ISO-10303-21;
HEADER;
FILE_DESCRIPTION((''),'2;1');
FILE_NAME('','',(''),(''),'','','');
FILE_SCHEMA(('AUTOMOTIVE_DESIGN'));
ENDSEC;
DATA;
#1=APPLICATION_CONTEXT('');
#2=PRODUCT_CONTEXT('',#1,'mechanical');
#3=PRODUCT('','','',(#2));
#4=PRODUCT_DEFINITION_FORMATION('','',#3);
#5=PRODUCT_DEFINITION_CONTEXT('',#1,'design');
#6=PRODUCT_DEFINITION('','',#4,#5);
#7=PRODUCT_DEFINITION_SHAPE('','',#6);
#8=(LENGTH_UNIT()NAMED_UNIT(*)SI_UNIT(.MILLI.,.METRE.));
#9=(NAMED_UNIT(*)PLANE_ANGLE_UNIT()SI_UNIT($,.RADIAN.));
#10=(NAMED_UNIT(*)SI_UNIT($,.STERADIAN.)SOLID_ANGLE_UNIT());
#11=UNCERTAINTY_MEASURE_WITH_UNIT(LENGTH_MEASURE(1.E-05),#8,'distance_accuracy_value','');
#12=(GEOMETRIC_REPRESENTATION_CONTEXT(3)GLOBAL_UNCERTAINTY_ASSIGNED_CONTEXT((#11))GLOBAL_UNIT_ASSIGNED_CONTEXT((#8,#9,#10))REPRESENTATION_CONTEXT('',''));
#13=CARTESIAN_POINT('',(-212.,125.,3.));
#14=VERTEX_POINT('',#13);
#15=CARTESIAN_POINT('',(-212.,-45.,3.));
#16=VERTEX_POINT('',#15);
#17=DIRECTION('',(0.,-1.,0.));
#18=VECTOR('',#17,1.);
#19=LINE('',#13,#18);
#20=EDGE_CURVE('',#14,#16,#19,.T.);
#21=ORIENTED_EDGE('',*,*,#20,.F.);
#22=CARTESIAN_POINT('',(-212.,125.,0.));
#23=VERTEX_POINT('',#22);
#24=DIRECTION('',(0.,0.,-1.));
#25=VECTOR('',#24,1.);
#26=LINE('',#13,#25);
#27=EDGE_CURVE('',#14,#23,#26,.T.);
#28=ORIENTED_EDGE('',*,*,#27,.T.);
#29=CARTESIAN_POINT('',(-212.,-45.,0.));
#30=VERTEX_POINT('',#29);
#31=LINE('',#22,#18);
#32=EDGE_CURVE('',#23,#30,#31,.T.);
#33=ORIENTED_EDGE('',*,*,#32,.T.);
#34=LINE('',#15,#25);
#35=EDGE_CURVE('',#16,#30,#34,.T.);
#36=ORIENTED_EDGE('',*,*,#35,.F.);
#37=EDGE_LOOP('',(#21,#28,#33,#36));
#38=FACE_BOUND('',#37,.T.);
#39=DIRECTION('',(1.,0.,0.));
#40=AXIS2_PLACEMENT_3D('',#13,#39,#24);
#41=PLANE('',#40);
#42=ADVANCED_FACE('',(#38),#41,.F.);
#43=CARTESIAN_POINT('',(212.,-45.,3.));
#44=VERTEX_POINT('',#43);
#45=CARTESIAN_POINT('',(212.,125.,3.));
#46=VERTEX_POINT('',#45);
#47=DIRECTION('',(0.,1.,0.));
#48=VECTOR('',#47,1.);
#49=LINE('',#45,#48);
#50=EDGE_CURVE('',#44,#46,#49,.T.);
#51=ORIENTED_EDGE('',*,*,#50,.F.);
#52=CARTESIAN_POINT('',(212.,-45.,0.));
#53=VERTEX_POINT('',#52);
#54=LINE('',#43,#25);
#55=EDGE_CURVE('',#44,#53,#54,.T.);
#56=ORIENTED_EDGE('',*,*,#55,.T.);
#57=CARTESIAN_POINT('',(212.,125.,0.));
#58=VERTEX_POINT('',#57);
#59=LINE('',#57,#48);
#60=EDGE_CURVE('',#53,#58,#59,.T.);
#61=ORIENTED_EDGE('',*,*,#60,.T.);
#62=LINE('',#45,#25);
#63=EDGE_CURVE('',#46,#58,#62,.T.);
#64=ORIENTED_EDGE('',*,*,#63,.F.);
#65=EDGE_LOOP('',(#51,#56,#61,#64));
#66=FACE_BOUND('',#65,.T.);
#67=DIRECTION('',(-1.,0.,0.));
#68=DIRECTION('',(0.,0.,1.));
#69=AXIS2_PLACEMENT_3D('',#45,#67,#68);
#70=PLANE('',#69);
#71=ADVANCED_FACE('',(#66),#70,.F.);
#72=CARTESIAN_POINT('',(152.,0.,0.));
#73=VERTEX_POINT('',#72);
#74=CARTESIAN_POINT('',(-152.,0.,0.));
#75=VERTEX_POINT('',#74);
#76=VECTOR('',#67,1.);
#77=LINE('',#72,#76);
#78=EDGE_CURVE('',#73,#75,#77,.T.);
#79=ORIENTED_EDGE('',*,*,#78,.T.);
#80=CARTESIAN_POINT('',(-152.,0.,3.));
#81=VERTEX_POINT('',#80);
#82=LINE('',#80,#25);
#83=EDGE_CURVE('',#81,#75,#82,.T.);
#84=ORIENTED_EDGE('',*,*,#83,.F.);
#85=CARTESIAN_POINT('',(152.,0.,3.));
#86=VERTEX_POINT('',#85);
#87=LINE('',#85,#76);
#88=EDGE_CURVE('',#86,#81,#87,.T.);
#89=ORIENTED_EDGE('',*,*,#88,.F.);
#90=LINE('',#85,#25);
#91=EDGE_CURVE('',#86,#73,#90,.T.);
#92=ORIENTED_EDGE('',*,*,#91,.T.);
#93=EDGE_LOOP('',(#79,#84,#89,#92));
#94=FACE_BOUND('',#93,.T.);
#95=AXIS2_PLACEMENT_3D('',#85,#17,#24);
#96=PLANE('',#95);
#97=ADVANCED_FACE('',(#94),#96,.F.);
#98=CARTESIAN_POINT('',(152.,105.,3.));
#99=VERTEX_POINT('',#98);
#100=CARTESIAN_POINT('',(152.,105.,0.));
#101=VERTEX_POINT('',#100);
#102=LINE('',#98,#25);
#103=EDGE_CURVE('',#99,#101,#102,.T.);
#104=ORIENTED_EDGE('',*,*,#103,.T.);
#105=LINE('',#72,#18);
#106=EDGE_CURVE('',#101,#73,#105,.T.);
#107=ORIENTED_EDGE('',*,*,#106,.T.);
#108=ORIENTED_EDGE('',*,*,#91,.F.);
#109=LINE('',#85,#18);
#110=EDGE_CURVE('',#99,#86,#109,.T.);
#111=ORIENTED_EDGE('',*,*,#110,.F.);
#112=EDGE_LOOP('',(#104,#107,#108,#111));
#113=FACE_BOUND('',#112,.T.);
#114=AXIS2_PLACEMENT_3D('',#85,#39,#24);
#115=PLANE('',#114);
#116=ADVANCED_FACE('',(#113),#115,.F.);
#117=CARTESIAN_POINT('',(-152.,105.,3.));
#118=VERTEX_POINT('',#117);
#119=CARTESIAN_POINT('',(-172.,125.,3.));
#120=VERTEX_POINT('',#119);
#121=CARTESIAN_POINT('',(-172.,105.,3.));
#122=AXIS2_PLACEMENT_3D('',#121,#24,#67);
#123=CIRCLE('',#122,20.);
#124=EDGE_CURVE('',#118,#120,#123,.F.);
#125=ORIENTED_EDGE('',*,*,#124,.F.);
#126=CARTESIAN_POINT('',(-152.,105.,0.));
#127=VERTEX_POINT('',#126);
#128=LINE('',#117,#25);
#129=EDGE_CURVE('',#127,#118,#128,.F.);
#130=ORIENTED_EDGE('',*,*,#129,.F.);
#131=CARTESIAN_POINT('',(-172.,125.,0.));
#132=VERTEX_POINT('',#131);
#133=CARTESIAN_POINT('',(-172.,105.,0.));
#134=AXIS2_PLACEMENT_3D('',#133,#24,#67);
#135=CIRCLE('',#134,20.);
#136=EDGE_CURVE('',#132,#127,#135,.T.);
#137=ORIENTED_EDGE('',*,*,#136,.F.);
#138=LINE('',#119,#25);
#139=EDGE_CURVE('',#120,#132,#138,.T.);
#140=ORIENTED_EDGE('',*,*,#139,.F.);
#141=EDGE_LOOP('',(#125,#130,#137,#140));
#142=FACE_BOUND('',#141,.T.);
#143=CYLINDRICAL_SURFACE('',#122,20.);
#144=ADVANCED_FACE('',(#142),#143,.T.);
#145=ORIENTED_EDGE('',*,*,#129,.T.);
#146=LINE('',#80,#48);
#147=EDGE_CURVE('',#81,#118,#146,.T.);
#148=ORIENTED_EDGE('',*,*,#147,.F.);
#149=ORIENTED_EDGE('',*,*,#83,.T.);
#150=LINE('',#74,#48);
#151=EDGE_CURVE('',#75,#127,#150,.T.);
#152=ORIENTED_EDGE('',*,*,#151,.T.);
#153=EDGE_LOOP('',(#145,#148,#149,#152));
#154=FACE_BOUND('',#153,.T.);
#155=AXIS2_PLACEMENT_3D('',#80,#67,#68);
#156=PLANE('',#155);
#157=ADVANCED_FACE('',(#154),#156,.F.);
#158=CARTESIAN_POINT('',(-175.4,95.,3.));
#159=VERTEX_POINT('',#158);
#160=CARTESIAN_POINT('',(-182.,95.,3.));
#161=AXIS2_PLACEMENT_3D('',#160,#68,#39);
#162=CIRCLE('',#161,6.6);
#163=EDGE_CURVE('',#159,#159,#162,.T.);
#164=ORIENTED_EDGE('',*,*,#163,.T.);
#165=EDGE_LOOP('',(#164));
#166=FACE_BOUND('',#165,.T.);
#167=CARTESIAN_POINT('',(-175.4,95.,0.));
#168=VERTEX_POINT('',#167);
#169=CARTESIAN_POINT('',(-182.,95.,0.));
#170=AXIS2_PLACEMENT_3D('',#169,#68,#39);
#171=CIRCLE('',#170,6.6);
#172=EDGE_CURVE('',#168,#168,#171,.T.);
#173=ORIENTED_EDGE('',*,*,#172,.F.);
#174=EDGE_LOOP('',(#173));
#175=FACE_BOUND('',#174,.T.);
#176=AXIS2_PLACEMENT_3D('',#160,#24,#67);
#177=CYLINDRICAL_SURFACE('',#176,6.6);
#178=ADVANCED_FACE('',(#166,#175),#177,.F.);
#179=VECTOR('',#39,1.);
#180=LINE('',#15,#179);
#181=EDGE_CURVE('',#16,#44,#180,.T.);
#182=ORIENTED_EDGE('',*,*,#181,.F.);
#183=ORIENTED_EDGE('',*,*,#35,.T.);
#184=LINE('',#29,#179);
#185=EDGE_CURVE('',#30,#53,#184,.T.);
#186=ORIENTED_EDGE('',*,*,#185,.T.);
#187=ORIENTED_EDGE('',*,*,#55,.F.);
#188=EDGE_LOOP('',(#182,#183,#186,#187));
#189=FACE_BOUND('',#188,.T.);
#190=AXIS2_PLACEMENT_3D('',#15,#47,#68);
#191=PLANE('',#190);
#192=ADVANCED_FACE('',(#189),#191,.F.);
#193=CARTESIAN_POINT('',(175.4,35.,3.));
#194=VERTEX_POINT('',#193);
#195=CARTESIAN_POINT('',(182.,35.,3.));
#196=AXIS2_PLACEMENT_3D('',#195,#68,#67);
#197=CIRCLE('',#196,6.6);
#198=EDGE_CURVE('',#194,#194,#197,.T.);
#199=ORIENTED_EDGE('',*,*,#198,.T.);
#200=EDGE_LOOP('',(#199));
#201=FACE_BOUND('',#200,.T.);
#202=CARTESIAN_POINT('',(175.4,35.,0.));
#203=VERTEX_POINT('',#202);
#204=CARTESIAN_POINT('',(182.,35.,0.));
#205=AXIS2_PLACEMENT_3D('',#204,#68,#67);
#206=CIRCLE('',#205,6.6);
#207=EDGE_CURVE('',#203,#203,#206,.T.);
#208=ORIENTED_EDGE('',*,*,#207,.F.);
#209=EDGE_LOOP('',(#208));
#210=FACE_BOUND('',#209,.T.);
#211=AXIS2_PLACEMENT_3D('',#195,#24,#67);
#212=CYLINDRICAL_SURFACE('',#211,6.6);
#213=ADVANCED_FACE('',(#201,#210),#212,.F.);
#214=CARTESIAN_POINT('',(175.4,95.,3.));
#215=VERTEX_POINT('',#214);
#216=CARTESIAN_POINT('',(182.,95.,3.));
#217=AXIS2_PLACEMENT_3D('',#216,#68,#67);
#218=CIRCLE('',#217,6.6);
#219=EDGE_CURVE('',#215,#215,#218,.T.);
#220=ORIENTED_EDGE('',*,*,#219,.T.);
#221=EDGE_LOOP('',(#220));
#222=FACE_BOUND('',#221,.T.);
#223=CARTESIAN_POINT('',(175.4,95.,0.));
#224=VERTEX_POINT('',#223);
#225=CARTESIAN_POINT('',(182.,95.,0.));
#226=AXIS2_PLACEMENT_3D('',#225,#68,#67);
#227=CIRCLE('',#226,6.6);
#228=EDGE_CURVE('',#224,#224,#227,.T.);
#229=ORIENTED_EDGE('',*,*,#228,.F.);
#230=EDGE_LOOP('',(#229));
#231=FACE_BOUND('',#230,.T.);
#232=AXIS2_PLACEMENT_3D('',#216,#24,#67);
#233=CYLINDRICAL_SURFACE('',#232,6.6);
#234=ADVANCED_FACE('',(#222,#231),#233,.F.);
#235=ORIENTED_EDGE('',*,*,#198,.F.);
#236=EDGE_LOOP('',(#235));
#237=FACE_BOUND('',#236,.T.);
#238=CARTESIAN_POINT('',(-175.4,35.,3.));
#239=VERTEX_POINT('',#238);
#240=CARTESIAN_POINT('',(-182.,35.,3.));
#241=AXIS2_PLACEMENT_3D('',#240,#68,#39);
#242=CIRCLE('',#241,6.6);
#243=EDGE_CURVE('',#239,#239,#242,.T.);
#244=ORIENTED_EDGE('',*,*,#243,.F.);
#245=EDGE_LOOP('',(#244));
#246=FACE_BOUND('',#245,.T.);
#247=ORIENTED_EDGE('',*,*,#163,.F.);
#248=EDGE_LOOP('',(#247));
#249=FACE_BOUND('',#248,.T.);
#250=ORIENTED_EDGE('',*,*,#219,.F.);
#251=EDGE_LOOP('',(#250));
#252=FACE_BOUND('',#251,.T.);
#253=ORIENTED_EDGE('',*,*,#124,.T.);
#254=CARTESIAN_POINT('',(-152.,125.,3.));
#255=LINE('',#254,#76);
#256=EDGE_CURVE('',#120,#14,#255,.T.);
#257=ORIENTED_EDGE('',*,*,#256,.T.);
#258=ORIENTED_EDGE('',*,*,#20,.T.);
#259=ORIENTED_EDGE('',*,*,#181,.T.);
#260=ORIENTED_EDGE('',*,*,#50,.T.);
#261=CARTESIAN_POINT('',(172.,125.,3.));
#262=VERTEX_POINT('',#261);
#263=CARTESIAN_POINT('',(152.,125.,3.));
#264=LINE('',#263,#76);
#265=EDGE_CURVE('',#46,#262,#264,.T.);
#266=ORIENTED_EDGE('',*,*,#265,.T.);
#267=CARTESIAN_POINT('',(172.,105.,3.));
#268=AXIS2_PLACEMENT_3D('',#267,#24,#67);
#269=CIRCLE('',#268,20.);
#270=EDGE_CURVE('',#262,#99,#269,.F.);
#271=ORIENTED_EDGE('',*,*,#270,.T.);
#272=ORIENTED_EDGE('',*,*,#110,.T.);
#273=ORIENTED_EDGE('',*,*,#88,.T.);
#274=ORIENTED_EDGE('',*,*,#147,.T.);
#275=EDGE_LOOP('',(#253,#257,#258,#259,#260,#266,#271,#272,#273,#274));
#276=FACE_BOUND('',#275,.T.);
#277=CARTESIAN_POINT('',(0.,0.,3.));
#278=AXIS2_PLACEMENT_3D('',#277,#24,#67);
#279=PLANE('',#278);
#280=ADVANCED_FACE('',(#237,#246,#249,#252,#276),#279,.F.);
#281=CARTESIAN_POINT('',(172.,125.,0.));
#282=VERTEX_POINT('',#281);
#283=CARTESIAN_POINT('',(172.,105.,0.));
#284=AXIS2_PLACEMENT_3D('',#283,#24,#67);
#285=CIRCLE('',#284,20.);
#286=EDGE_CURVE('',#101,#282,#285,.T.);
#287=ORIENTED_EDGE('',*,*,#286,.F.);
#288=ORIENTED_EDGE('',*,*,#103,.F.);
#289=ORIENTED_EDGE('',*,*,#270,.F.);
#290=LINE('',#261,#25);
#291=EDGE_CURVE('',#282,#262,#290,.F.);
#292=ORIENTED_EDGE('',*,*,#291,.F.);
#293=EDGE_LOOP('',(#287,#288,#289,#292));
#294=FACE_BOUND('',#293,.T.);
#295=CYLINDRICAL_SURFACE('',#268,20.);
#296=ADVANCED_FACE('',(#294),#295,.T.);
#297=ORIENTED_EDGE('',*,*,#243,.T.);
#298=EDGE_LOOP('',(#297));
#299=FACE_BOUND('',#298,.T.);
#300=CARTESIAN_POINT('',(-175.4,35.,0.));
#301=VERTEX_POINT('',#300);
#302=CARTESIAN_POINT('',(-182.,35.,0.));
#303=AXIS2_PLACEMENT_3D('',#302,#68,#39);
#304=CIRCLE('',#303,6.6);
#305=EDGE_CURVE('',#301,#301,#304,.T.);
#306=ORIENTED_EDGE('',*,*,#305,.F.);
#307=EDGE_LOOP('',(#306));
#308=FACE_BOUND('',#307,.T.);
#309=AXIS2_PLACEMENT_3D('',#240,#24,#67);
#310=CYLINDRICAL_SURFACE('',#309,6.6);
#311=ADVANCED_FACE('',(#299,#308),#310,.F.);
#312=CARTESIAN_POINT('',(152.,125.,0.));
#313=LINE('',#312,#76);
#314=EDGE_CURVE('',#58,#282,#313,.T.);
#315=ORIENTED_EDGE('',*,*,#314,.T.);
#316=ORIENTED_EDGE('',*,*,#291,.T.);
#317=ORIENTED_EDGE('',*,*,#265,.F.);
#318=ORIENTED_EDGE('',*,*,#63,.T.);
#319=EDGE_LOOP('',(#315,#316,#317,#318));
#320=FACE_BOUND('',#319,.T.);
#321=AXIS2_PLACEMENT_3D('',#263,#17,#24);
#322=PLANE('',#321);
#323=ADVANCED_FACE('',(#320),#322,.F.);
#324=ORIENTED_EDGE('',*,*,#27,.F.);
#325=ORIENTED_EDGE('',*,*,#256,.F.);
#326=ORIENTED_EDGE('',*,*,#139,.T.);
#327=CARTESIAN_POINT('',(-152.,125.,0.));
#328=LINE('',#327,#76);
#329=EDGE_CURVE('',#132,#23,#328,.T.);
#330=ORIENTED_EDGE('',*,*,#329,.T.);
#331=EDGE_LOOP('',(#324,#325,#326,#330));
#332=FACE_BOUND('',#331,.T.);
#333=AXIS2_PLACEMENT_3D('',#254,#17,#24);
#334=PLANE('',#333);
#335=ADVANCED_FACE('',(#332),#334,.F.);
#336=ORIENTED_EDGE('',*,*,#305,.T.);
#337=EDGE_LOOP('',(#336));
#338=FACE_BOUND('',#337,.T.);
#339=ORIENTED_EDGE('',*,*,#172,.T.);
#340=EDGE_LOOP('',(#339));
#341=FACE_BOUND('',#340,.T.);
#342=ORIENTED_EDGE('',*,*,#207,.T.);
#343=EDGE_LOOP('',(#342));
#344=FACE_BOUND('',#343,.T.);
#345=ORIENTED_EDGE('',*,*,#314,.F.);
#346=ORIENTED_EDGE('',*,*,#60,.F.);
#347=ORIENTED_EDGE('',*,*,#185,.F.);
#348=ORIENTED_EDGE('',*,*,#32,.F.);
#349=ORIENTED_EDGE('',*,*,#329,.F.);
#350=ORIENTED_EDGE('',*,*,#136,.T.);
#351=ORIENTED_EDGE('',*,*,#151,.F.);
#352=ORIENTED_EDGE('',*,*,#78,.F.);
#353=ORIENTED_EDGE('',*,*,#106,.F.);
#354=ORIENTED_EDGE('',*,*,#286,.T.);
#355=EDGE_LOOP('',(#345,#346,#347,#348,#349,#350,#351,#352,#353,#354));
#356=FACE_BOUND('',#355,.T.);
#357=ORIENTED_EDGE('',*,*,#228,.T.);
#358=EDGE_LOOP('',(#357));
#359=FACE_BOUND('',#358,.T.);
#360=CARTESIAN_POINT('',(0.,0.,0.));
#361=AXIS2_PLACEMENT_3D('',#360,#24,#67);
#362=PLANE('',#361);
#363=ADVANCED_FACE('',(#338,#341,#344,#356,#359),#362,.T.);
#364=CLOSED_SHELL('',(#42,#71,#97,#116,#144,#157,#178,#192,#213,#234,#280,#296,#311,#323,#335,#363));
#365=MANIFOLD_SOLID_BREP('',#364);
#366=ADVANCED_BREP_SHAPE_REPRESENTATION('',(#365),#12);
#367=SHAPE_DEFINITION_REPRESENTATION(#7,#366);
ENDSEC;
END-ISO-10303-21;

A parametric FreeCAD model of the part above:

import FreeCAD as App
import Part
import Sketcher
from FreeCAD import Vector


def edges_at(feature, points):
    """Names of the edges that pass closest to the given points."""
    edges = feature.Shape.Edges
    near = lambda p: min(range(len(edges)), key=lambda i: edges[i].distToShape(Part.Vertex(*p))[0])
    return sorted({f"Edge{near(p) + 1}" for p in points})


def add_polygon(sketch, points):
    """Adds a closed chain of lines whose ends are joined by coincident constraints."""
    first, n = sketch.GeometryCount, len(points)
    for a, b in zip(points, points[1:] + points[:1]):
        sketch.addGeometry(Part.LineSegment(App.Vector(*a, 0), App.Vector(*b, 0)), False)
    for i in range(n):
        sketch.addConstraint(Sketcher.Constraint("Coincident", first + i, 2, first + (i + 1) % n, 1))

doc = App.newDocument("Part")
body = doc.addObject("PartDesign::Body", "Body")

sketch1 = body.newObject("Sketcher::SketchObject", "Sketch")
sketch1.AttachmentSupport = (doc.getObject("XY_Plane"), [""])
sketch1.MapMode = "FlatFace"
add_polygon(sketch1, [(152, 0), (-152, 0), (-152, 125), (-212, 125), (-212, -45), (212, -45), (212, 125), (152, 125)])
sketch1.addGeometry(Part.Circle(Vector(-182, 35, 0), Vector(0, 0, 1), 7), False)
sketch1.addGeometry(Part.Circle(Vector(182, 35, 0), Vector(0, 0, 1), 7), False)
sketch1.addGeometry(Part.Circle(Vector(-182, 95, 0), Vector(0, 0, 1), 7), False)
sketch1.addGeometry(Part.Circle(Vector(182, 95, 0), Vector(0, 0, 1), 7), False)
sketch1.addConstraint([
    Sketcher.Constraint("Horizontal", 0),
    Sketcher.Constraint("Vertical", 1),
    Sketcher.Constraint("Horizontal", 2),
    Sketcher.Constraint("Vertical", 3),
    Sketcher.Constraint("Horizontal", 4),
    Sketcher.Constraint("Vertical", 5),
    Sketcher.Constraint("Horizontal", 6),
    Sketcher.Constraint("Vertical", 7),
    Sketcher.Constraint("Equal", 8, 9),
    Sketcher.Constraint("Equal", 9, 10),
    Sketcher.Constraint("Equal", 10, 11),
    Sketcher.Constraint("Symmetric", 0, 2, 7, 2, -1, 1),
    Sketcher.Constraint("Symmetric", 8, 3, 9, 3, -2),
    Sketcher.Constraint("Symmetric", 10, 3, 11, 3, -2),
    Sketcher.Constraint("Symmetric", 2, 2, 5, 2, -2),
    Sketcher.Constraint("Vertical", 8, 3, 10, 3),
    Sketcher.Constraint("Diameter", 8, 13.2),
    Sketcher.Constraint("DistanceX", 0, 2, 0, 1, 304.0),
    Sketcher.Constraint("DistanceX", 2, 2, 2, 1, 60.0),
    Sketcher.Constraint("DistanceY", 1, 1, 1, 2, 125.0),
    Sketcher.Constraint("DistanceY", 3, 2, 3, 1, 170.0),
    Sketcher.Constraint("DistanceX", 8, 3, -1, 1, 182.0),
    Sketcher.Constraint("DistanceY", -1, 1, 8, 3, 35.0),
    Sketcher.Constraint("DistanceY", -1, 1, 10, 3, 95.0),
])
pad1 = body.newObject("PartDesign::Pad", "Pad")
pad1.Profile = sketch1
pad1.Length = 3
doc.recompute()

fillet = body.newObject("PartDesign::Fillet", "Fillet")
fillet.Base = (pad1, edges_at(pad1, [(-152, 125, 1.5), (152, 125, 1.5)]))
fillet.Radius = 20

doc.recompute()
